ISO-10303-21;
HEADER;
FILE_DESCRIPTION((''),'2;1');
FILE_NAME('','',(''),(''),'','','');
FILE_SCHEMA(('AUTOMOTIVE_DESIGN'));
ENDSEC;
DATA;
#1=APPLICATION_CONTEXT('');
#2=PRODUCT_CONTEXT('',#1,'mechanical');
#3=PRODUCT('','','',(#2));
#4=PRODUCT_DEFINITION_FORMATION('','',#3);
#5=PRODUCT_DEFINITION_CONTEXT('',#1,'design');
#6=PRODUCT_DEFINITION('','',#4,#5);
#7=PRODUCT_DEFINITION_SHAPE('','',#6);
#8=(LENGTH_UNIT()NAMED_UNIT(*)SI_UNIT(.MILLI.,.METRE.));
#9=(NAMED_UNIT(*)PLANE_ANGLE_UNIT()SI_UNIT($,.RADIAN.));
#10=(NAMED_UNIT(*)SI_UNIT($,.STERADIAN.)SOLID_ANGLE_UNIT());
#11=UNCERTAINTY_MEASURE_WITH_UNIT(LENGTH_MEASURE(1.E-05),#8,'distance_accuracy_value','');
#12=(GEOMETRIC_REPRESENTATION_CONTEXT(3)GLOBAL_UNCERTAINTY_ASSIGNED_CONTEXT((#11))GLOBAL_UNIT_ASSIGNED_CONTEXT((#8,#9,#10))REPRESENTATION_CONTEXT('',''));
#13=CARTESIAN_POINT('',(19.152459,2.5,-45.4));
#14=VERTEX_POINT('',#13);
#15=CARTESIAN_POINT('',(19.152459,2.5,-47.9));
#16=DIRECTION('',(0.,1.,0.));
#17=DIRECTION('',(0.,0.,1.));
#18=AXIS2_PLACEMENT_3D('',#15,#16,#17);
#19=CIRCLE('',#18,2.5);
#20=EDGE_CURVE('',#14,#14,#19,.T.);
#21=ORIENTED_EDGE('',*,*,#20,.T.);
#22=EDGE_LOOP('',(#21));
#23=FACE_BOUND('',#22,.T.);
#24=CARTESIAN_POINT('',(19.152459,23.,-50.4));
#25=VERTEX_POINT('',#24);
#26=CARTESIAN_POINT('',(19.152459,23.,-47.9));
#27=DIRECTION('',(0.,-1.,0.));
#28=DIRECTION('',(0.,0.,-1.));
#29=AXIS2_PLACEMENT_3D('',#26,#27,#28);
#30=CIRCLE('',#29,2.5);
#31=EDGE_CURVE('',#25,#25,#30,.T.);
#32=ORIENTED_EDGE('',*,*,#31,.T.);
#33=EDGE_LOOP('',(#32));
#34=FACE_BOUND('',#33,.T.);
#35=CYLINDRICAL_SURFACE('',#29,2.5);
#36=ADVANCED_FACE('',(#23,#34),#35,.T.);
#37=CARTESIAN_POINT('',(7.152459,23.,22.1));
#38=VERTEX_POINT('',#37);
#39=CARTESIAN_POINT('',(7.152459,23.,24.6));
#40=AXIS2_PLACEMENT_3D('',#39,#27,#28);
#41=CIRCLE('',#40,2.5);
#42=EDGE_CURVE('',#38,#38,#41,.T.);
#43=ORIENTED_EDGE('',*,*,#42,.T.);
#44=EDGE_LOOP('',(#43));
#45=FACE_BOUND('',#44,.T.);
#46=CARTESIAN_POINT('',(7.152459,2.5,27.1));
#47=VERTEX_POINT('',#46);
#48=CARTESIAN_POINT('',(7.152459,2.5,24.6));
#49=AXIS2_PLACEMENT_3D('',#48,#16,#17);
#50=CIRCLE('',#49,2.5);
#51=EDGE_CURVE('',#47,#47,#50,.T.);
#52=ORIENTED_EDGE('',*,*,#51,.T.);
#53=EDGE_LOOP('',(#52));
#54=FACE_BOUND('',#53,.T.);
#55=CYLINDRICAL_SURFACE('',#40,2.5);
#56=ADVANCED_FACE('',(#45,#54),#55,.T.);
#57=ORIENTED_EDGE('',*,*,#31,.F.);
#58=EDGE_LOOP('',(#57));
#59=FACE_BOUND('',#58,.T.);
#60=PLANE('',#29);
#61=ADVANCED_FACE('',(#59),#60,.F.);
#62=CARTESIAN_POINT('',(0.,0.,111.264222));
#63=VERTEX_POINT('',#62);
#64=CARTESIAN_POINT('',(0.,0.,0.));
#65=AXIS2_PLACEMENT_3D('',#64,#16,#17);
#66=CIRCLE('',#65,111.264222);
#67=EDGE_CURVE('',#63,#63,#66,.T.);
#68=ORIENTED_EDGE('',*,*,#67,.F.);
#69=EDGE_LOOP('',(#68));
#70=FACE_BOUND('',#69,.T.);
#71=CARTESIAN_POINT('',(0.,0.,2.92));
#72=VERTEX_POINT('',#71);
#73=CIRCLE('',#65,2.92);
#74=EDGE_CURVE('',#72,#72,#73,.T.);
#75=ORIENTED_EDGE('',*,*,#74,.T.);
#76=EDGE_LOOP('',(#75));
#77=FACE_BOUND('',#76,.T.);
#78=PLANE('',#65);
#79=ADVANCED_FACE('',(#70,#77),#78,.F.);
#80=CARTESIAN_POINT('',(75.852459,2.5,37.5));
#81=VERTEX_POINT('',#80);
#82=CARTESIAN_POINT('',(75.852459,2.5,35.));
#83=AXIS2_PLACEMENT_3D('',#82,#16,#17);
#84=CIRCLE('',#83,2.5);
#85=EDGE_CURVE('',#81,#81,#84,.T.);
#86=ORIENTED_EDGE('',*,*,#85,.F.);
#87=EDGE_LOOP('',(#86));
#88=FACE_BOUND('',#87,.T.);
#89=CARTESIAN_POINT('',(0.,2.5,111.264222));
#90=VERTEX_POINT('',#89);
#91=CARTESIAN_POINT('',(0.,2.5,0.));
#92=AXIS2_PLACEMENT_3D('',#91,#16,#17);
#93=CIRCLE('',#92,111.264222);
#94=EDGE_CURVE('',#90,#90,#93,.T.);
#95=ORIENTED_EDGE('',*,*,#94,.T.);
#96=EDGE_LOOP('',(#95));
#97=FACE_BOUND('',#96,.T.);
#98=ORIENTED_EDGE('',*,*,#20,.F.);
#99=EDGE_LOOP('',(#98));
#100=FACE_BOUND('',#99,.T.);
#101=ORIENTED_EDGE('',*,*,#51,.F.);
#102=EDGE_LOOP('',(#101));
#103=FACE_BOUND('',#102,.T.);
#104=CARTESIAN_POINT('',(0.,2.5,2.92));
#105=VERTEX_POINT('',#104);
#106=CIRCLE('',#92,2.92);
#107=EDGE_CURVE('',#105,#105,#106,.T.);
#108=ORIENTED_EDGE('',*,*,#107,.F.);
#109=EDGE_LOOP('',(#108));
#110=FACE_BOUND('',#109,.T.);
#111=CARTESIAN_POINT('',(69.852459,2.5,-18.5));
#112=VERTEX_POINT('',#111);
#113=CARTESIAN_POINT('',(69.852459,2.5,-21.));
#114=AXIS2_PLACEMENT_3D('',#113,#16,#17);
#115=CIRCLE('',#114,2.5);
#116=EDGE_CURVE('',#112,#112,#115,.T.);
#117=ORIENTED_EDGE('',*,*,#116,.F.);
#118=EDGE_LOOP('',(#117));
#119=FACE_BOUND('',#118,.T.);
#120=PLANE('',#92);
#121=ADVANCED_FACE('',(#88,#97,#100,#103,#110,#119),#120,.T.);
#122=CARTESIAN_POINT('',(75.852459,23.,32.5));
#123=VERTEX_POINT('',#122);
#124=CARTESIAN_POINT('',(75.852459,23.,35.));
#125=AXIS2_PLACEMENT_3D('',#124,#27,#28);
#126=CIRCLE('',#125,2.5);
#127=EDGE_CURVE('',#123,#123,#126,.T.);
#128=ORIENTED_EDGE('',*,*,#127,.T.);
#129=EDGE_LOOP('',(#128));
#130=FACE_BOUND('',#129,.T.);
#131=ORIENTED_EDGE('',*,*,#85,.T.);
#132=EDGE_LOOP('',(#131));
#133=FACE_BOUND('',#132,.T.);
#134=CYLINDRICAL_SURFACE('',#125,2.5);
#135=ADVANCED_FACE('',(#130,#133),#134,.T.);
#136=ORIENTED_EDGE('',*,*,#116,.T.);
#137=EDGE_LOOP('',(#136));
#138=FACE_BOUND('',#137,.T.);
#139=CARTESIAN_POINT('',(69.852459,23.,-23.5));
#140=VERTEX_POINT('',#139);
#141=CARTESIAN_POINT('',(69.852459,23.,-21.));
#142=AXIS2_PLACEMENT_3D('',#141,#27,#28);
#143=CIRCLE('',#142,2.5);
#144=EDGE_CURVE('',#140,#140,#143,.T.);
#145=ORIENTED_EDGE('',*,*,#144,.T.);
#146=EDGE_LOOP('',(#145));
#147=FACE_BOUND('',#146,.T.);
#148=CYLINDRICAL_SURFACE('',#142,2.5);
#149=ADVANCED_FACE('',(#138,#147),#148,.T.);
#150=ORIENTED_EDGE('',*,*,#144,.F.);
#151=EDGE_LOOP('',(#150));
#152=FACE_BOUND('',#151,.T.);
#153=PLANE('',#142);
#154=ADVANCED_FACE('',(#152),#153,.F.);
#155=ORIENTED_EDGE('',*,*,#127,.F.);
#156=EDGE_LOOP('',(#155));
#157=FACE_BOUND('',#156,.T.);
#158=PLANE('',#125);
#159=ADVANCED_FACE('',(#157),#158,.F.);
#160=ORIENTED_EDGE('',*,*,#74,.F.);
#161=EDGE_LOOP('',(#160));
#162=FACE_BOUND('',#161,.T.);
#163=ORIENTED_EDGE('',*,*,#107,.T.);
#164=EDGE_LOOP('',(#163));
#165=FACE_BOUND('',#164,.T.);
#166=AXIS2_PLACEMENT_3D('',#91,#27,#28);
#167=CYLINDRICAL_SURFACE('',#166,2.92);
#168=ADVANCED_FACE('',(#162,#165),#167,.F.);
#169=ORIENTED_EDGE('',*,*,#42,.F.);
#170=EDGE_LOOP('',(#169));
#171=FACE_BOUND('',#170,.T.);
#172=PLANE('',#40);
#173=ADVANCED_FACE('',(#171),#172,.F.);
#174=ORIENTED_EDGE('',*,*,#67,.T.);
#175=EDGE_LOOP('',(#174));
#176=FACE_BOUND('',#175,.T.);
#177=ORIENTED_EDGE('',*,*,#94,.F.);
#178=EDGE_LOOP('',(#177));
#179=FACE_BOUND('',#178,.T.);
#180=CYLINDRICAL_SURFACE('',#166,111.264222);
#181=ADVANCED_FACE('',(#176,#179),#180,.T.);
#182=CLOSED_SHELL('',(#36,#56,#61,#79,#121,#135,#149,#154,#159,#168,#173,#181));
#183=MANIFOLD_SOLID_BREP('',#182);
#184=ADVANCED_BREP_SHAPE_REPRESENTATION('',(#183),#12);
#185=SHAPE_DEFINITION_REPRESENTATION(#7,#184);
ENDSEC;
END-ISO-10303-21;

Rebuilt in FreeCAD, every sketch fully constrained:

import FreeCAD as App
import Part
import Sketcher

doc = App.newDocument("Part")
body = doc.addObject("PartDesign::Body", "Body")

# Sketch on XZ plane
sketch1 = body.newObject("Sketcher::SketchObject", "Sketch")
sketch1.AttachmentSupport = (doc.getObject("XZ_Plane"), [""])
sketch1.MapMode = "FlatFace"
sketch1.addGeometry([
    Part.Circle(App.Vector(0, 0, 0), App.Vector(0, 0, 1), 111.3),  # 0
    Part.Circle(App.Vector(7.2, 24.6, 0), App.Vector(0, 0, 1), 2.5),  # 1
    Part.Circle(App.Vector(0, 0, 0), App.Vector(0, 0, 1), 2.9),  # 2
    Part.Circle(App.Vector(75.9, 35, 0), App.Vector(0, 0, 1), 2.5),  # 3
    Part.Circle(App.Vector(19.2, -47.9, 0), App.Vector(0, 0, 1), 2.5),  # 4
    Part.Circle(App.Vector(69.9, -21, 0), App.Vector(0, 0, 1), 2.5),  # 5
], False)
sketch1.addConstraint([
    Sketcher.Constraint("Coincident", 0, 3, -1, 1),
    Sketcher.Constraint("Coincident", 2, 3, -1, 1),
    Sketcher.Constraint("Equal", 1, 3),
    Sketcher.Constraint("Equal", 3, 4),
    Sketcher.Constraint("Equal", 4, 5),
    Sketcher.Constraint("Diameter", 1, 5.0),
    Sketcher.Constraint("Diameter", 2, 5.84),
    Sketcher.Constraint("DistanceY", -1, 1, 3, 3, 35.0),
    Sketcher.Constraint("DistanceY", 5, 3, -1, 1, 21.0),
    Sketcher.Constraint("DistanceX", 1, 3, 4, 3, 12.0),
    Sketcher.Constraint("DistanceX", 5, 3, 3, 3, 6.0),
    Sketcher.Constraint("DistanceY", -1, 1, 1, 3, 24.6),
    Sketcher.Constraint("DistanceY", 4, 3, -1, 1, 47.9),
    Sketcher.Constraint("DistanceX", 1, 3, 3, 3, 68.7),
    Sketcher.Constraint("Diameter", 0, 222.528444),
    Sketcher.Constraint("DistanceX", -1, 1, 1, 3, 7.152459),
])
pad1 = body.newObject("PartDesign::Pad", "Pad")
pad1.Profile = sketch1
pad1.Length = 2.5
pad1.Reversed = True

# Sketch on XZ plane
sketch2 = body.newObject("Sketcher::SketchObject", "Sketch001")
sketch2.AttachmentSupport = (doc.getObject("XZ_Plane"), [""])
sketch2.MapMode = "FlatFace"
sketch2.addGeometry(Part.Circle(App.Vector(19.2, -47.9, 0), App.Vector(0, 0, 1), 2.5), False)
sketch2.addConstraint([
    Sketcher.Constraint("Diameter", 0, 5.0),
    Sketcher.Constraint("DistanceY", 0, 3, -1, 1, 47.9),
    Sketcher.Constraint("DistanceX", -1, 1, 0, 3, 19.152459),
])
pad2 = body.newObject("PartDesign::Pad", "Pad001")
pad2.Profile = sketch2
pad2.Length = 23
pad2.Reversed = True

# Sketch on XZ plane
sketch3 = body.newObject("Sketcher::SketchObject", "Sketch002")
sketch3.AttachmentSupport = (doc.getObject("XZ_Plane"), [""])
sketch3.MapMode = "FlatFace"
sketch3.addGeometry(Part.Circle(App.Vector(69.9, -21, 0), App.Vector(0, 0, 1), 2.5), False)
sketch3.addConstraint([
    Sketcher.Constraint("Diameter", 0, 5.0),
    Sketcher.Constraint("DistanceY", 0, 3, -1, 1, 21.0),
    Sketcher.Constraint("DistanceX", -1, 1, 0, 3, 69.852459),
])
pad3 = body.newObject("PartDesign::Pad", "Pad002")
pad3.Profile = sketch3
pad3.Length = 23
pad3.Reversed = True

# Sketch on XZ plane
sketch4 = body.newObject("Sketcher::SketchObject", "Sketch003")
sketch4.AttachmentSupport = (doc.getObject("XZ_Plane"), [""])
sketch4.MapMode = "FlatFace"
sketch4.addGeometry(Part.Circle(App.Vector(75.9, 35, 0), App.Vector(0, 0, 1), 2.5), False)
sketch4.addConstraint([
    Sketcher.Constraint("Diameter", 0, 5.0),
    Sketcher.Constraint("DistanceY", -1, 1, 0, 3, 35.0),
    Sketcher.Constraint("DistanceX", -1, 1, 0, 3, 75.852459),
])
pad4 = body.newObject("PartDesign::Pad", "Pad003")
pad4.Profile = sketch4
pad4.Length = 23
pad4.Reversed = True

# Sketch on XZ plane
sketch5 = body.newObject("Sketcher::SketchObject", "Sketch004")
sketch5.AttachmentSupport = (doc.getObject("XZ_Plane"), [""])
sketch5.MapMode = "FlatFace"
sketch5.addGeometry(Part.Circle(App.Vector(7.2, 24.6, 0), App.Vector(0, 0, 1), 2.5), False)
sketch5.addConstraint([
    Sketcher.Constraint("Diameter", 0, 5.0),
    Sketcher.Constraint("DistanceY", -1, 1, 0, 3, 24.6),
    Sketcher.Constraint("DistanceX", -1, 1, 0, 3, 7.152459),
])
pad5 = body.newObject("PartDesign::Pad", "Pad004")
pad5.Profile = sketch5
pad5.Length = 23
pad5.Reversed = True

doc.recompute()
